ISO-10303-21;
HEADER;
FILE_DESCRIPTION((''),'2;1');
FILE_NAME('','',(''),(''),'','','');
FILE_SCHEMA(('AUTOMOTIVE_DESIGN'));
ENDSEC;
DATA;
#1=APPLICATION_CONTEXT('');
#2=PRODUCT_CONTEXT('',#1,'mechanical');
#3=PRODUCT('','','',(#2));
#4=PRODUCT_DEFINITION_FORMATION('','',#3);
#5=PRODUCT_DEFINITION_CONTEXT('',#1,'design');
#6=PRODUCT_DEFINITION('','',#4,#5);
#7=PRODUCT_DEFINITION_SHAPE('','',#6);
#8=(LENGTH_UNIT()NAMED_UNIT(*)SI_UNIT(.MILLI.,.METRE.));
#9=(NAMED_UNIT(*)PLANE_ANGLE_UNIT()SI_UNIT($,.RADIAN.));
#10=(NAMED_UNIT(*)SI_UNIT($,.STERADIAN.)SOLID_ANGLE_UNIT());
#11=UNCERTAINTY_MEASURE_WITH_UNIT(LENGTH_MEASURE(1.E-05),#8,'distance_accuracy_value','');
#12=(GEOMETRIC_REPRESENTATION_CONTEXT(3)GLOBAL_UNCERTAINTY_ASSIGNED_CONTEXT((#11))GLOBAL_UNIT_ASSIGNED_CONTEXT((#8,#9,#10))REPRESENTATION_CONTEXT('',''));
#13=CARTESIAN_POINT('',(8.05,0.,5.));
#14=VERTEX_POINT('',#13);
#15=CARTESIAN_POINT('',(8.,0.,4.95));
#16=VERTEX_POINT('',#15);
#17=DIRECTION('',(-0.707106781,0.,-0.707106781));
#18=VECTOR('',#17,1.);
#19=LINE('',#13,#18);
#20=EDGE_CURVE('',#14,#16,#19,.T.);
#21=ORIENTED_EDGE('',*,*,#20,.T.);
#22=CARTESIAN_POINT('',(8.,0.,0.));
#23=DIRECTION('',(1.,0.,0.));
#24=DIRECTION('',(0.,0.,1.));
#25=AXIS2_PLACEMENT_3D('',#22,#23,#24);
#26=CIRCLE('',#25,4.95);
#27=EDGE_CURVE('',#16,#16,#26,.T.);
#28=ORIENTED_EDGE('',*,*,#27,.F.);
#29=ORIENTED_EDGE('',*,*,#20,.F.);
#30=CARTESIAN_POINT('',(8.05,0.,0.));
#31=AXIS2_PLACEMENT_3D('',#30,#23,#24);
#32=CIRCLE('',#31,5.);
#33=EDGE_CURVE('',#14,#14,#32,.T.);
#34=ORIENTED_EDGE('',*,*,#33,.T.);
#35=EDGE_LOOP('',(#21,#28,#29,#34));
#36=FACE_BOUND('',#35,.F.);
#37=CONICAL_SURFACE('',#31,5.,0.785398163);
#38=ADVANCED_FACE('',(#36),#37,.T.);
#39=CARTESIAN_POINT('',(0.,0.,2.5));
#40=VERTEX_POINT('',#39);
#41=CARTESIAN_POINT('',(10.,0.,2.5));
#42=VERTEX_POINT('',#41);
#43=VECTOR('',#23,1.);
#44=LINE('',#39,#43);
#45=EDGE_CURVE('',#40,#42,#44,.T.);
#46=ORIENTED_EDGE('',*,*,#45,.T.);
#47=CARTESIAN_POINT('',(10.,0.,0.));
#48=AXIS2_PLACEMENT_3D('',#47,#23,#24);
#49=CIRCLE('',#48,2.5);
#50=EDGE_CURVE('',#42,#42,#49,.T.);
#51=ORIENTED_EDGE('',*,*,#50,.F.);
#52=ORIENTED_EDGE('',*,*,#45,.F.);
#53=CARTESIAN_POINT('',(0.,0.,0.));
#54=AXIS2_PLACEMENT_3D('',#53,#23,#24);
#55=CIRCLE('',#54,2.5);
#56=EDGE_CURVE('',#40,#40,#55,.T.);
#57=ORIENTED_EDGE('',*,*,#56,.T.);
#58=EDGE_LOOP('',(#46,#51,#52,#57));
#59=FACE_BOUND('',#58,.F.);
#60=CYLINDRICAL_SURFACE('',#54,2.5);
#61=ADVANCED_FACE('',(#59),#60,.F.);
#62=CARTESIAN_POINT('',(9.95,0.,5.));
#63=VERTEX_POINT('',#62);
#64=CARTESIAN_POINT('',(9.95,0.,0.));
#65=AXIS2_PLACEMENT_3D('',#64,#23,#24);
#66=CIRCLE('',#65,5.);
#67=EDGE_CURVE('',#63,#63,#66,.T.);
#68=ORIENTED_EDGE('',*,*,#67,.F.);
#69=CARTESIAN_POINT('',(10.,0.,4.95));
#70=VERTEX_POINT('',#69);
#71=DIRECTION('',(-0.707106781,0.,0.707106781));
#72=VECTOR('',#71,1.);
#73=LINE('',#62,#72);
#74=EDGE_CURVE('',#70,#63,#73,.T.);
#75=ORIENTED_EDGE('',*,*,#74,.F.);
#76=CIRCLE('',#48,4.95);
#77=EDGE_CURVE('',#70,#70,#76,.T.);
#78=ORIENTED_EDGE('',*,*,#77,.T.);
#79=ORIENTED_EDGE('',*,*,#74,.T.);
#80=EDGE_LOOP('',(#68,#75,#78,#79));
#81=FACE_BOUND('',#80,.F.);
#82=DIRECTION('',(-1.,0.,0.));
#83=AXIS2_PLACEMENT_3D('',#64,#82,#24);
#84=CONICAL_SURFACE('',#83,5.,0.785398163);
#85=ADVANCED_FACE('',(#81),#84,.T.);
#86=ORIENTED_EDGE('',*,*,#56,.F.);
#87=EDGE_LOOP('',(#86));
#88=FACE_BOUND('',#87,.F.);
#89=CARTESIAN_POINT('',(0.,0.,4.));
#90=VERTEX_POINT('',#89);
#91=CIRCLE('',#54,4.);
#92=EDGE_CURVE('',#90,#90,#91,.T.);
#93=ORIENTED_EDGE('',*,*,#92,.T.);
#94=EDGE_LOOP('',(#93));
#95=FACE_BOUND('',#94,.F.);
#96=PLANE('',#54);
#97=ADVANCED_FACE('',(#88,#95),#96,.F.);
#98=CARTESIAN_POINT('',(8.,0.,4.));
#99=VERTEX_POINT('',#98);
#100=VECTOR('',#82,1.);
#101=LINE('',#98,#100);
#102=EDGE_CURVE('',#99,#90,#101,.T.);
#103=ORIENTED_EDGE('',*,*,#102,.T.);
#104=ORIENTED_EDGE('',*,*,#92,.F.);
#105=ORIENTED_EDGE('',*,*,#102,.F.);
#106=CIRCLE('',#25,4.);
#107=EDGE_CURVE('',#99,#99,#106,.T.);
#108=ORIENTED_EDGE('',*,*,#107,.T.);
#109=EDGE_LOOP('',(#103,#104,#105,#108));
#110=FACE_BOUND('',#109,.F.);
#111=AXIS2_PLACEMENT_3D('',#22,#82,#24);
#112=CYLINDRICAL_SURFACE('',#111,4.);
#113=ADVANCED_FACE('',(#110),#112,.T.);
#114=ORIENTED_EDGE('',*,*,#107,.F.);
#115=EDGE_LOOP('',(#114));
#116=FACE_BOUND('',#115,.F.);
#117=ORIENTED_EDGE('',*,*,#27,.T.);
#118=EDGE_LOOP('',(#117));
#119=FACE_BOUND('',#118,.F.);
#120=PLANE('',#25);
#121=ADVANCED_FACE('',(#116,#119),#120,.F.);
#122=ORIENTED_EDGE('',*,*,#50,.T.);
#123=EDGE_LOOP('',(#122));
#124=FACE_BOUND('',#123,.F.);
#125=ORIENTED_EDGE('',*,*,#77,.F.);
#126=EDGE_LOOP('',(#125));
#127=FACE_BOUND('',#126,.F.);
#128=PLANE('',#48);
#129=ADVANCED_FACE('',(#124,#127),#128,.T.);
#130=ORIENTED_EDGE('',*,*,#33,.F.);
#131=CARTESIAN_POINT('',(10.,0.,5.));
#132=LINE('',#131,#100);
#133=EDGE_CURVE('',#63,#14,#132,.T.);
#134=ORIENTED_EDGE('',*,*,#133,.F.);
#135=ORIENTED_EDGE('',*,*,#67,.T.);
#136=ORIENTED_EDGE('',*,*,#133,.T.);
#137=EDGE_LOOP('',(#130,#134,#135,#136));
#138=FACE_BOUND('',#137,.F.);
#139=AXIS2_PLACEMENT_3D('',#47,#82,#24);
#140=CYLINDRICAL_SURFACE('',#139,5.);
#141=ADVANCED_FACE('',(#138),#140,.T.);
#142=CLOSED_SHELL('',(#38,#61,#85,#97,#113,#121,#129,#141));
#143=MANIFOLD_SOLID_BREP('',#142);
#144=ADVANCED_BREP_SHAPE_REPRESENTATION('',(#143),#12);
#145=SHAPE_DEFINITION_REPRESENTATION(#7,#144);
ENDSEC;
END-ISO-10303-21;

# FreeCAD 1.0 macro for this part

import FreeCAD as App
import Part
import Sketcher


def edges_at(feature, points):
    """Names of the edges that pass closest to the given points."""
    edges = feature.Shape.Edges
    near = lambda p: min(range(len(edges)), key=lambda i: edges[i].distToShape(Part.Vertex(*p))[0])
    return sorted({f"Edge{near(p) + 1}" for p in points})


def add_polygon(sketch, points):
    """Adds a closed chain of lines whose ends are joined by coincident constraints."""
    first, n = sketch.GeometryCount, len(points)
    for a, b in zip(points, points[1:] + points[:1]):
        sketch.addGeometry(Part.LineSegment(App.Vector(*a, 0), App.Vector(*b, 0)), False)
    for i in range(n):
        sketch.addConstraint(Sketcher.Constraint("Coincident", first + i, 2, first + (i + 1) % n, 1))

doc = App.newDocument("Part")
body = doc.addObject("PartDesign::Body", "Body")

# Sketch on XZ plane
sketch1 = body.newObject("Sketcher::SketchObject", "Sketch")
sketch1.AttachmentSupport = (doc.getObject("XZ_Plane"), [""])
sketch1.MapMode = "FlatFace"
add_polygon(sketch1, [(0, 4), (0, 2.5), (10, 2.5), (10, 5), (8, 5), (8, 4)])  # lines 0-5
sketch1.addConstraint([
    Sketcher.Constraint("Vertical", 0),
    Sketcher.Constraint("Horizontal", 1),
    Sketcher.Constraint("Vertical", 2),
    Sketcher.Constraint("Horizontal", 3),
    Sketcher.Constraint("Vertical", 4),
    Sketcher.Constraint("Horizontal", 5),
    Sketcher.Constraint("PointOnObject", 0, 2, -2),
    Sketcher.Constraint("DistanceX", 1, 1, 1, 2, 10.0),
    Sketcher.Constraint("DistanceX", 3, 2, 3, 1, 2.0),
    Sketcher.Constraint("DistanceY", 4, 2, 4, 1, 1.0),
    Sketcher.Constraint("DistanceY", 0, 2, 0, 1, 1.5),
    Sketcher.Constraint("DistanceY", -1, 1, 2, 2, 5.0),
])
revolution = body.newObject("PartDesign::Revolution", "Revolution")
revolution.Profile = sketch1
revolution.ReferenceAxis = (sketch1, ["H_Axis"])
revolution.Angle = 360
doc.recompute()

chamfer = body.newObject("PartDesign::Chamfer", "Chamfer")
chamfer.Base = (revolution, edges_at(revolution, [(10, 0, -5), (8, 0, -5)]))
chamfer.ChamferType = "Two distances"
chamfer.Size = 0.05
chamfer.Size2 = 0.05

doc.recompute()
